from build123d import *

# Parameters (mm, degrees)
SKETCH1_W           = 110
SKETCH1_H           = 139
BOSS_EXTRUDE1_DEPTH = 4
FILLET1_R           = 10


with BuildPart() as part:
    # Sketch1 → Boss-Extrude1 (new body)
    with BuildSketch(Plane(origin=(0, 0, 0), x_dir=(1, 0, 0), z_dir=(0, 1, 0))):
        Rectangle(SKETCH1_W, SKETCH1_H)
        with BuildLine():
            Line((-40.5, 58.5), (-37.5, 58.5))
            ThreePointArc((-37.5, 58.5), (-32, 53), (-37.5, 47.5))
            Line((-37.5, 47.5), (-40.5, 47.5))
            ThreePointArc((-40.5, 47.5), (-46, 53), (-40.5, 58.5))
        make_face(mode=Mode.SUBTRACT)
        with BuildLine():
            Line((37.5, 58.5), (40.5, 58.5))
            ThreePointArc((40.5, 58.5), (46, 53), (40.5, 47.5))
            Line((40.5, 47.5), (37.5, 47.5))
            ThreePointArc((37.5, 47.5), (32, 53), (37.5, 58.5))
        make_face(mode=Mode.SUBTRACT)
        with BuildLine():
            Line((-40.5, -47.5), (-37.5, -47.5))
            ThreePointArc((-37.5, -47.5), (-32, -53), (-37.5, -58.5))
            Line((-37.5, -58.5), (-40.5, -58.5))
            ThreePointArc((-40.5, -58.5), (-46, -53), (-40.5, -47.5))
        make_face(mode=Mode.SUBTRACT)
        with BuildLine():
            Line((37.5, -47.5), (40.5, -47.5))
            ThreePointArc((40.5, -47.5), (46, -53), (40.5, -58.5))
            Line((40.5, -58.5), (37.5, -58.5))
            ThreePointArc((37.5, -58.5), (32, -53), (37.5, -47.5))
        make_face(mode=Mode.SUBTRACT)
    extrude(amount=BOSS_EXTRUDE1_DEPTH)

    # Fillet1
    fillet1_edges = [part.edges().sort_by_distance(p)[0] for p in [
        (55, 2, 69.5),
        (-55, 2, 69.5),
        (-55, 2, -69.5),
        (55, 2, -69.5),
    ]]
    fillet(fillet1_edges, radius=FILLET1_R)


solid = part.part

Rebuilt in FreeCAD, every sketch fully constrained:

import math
import FreeCAD as App
import Part
import Sketcher


def edges_at(feature, points):
    """Names of the edges that pass closest to the given points."""
    edges = feature.Shape.Edges
    near = lambda p: min(range(len(edges)), key=lambda i: edges[i].distToShape(Part.Vertex(*p))[0])
    return sorted({f"Edge{near(p) + 1}" for p in points})

doc = App.newDocument("Part")
body = doc.addObject("PartDesign::Body", "Body")

sketch1 = body.newObject("Sketcher::SketchObject", "Sketch")
sketch1.AttachmentSupport = (doc.getObject("XZ_Plane"), [""])
sketch1.MapMode = "FlatFace"
sketch1.addGeometry([
    Part.LineSegment(App.Vector(-55, -69.5, 0), App.Vector(-55, 69.5, 0)),
    Part.LineSegment(App.Vector(-55, 69.5, 0), App.Vector(55, 69.5, 0)),
    Part.LineSegment(App.Vector(55, 69.5, 0), App.Vector(55, -69.5, 0)),
    Part.LineSegment(App.Vector(55, -69.5, 0), App.Vector(-55, -69.5, 0)),
    Part.ArcOfCircle(Part.Circle(App.Vector(-40.5, 53, 0), App.Vector(0, 0, 1), 5.5), math.radians(90), math.radians(270)),
    Part.LineSegment(App.Vector(-40.5, 47.5, 0), App.Vector(-37.5, 47.5, 0)),
    Part.ArcOfCircle(Part.Circle(App.Vector(-37.5, 53, 0), App.Vector(0, 0, 1), 5.5), math.radians(-90), math.radians(90)),
    Part.LineSegment(App.Vector(-37.5, 58.5, 0), App.Vector(-40.5, 58.5, 0)),
    Part.ArcOfCircle(Part.Circle(App.Vector(37.5, 53, 0), App.Vector(0, 0, 1), 5.5), math.radians(90), math.radians(270)),
    Part.LineSegment(App.Vector(37.5, 47.5, 0), App.Vector(40.5, 47.5, 0)),
    Part.ArcOfCircle(Part.Circle(App.Vector(40.5, 53, 0), App.Vector(0, 0, 1), 5.5), math.radians(-90), math.radians(90)),
    Part.LineSegment(App.Vector(40.5, 58.5, 0), App.Vector(37.5, 58.5, 0)),
    Part.ArcOfCircle(Part.Circle(App.Vector(-40.5, -53, 0), App.Vector(0, 0, 1), 5.5), math.radians(90), math.radians(270)),
    Part.LineSegment(App.Vector(-40.5, -58.5, 0), App.Vector(-37.5, -58.5, 0)),
    Part.ArcOfCircle(Part.Circle(App.Vector(-37.5, -53, 0), App.Vector(0, 0, 1), 5.5), math.radians(-90), math.radians(90)),
    Part.LineSegment(App.Vector(-37.5, -47.5, 0), App.Vector(-40.5, -47.5, 0)),
    Part.ArcOfCircle(Part.Circle(App.Vector(37.5, -53, 0), App.Vector(0, 0, 1), 5.5), math.radians(90), math.radians(270)),
    Part.LineSegment(App.Vector(37.5, -58.5, 0), App.Vector(40.5, -58.5, 0)),
    Part.ArcOfCircle(Part.Circle(App.Vector(40.5, -53, 0), App.Vector(0, 0, 1), 5.5), math.radians(-90), math.radians(90)),
    Part.LineSegment(App.Vector(40.5, -47.5, 0), App.Vector(37.5, -47.5, 0)),
], False)
sketch1.addConstraint([
    Sketcher.Constraint("Coincident", 0, 2, 1, 1),
    Sketcher.Constraint("Coincident", 1, 2, 2, 1),
    Sketcher.Constraint("Coincident", 2, 2, 3, 1),
    Sketcher.Constraint("Coincident", 3, 2, 0, 1),
    Sketcher.Constraint("Tangent", 4, 2, 5, 1),
    Sketcher.Constraint("Tangent", 5, 2, 6, 1),
    Sketcher.Constraint("Tangent", 6, 2, 7, 1),
    Sketcher.Constraint("Tangent", 7, 2, 4, 1),
    Sketcher.Constraint("Tangent", 8, 2, 9, 1),
    Sketcher.Constraint("Tangent", 9, 2, 10, 1),
    Sketcher.Constraint("Tangent", 10, 2, 11, 1),
    Sketcher.Constraint("Tangent", 11, 2, 8, 1),
    Sketcher.Constraint("Tangent", 12, 2, 13, 1),
    Sketcher.Constraint("Tangent", 13, 2, 14, 1),
    Sketcher.Constraint("Tangent", 14, 2, 15, 1),
    Sketcher.Constraint("Tangent", 15, 2, 12, 1),
    Sketcher.Constraint("Tangent", 16, 2, 17, 1),
    Sketcher.Constraint("Tangent", 17, 2, 18, 1),
    Sketcher.Constraint("Tangent", 18, 2, 19, 1),
    Sketcher.Constraint("Tangent", 19, 2, 16, 1),
    Sketcher.Constraint("Vertical", 0),
    Sketcher.Constraint("Horizontal", 1),
    Sketcher.Constraint("Vertical", 2),
    Sketcher.Constraint("Horizontal", 3),
    Sketcher.Constraint("Horizontal", 5),
    Sketcher.Constraint("Horizontal", 7),
    Sketcher.Constraint("Horizontal", 9),
    Sketcher.Constraint("Horizontal", 11),
    Sketcher.Constraint("Horizontal", 13),
    Sketcher.Constraint("Horizontal", 15),
    Sketcher.Constraint("Horizontal", 17),
    Sketcher.Constraint("Horizontal", 19),
    Sketcher.Constraint("Equal", 6, 8),
    Sketcher.Constraint("Equal", 10, 12),
    Sketcher.Constraint("Equal", 14, 16),
    Sketcher.Constraint("Symmetric", 10, 3, 12, 3, -1, 1),
    Sketcher.Constraint("Symmetric", 6, 3, 16, 3, -1, 1),
    Sketcher.Constraint("Symmetric", 0, 2, 2, 2, -1, 1),
    Sketcher.Constraint("Symmetric", 6, 3, 8, 3, -2),
    Sketcher.Constraint("Vertical", 4, 3, 12, 3),
    Sketcher.Constraint("Vertical", 6, 3, 14, 3),
    Sketcher.Constraint("Vertical", 10, 3, 18, 3),
    Sketcher.Constraint("Radius", 4, 5.5),
    Sketcher.Constraint("DistanceX", 1, 1, 1, 2, 110.0),
    Sketcher.Constraint("DistanceX", 5, 1, 5, 2, 3.0),
    Sketcher.Constraint("DistanceY", 0, 1, 0, 2, 139.0),
    Sketcher.Constraint("DistanceY", -1, 1, 4, 3, 53.0),
    Sketcher.Constraint("DistanceX", 6, 3, 8, 3, 75.0),
])
pad1 = body.newObject("PartDesign::Pad", "Pad")
pad1.Profile = sketch1
pad1.Length = 4
pad1.Reversed = True
doc.recompute()

fillet = body.newObject("PartDesign::Fillet", "Fillet")
fillet.Base = (pad1, edges_at(pad1, [
    (55, 2, 69.5),
    (-55, 2, 69.5),
    (-55, 2, -69.5),
    (55, 2, -69.5),
]))
fillet.Radius = 10

doc.recompute()
